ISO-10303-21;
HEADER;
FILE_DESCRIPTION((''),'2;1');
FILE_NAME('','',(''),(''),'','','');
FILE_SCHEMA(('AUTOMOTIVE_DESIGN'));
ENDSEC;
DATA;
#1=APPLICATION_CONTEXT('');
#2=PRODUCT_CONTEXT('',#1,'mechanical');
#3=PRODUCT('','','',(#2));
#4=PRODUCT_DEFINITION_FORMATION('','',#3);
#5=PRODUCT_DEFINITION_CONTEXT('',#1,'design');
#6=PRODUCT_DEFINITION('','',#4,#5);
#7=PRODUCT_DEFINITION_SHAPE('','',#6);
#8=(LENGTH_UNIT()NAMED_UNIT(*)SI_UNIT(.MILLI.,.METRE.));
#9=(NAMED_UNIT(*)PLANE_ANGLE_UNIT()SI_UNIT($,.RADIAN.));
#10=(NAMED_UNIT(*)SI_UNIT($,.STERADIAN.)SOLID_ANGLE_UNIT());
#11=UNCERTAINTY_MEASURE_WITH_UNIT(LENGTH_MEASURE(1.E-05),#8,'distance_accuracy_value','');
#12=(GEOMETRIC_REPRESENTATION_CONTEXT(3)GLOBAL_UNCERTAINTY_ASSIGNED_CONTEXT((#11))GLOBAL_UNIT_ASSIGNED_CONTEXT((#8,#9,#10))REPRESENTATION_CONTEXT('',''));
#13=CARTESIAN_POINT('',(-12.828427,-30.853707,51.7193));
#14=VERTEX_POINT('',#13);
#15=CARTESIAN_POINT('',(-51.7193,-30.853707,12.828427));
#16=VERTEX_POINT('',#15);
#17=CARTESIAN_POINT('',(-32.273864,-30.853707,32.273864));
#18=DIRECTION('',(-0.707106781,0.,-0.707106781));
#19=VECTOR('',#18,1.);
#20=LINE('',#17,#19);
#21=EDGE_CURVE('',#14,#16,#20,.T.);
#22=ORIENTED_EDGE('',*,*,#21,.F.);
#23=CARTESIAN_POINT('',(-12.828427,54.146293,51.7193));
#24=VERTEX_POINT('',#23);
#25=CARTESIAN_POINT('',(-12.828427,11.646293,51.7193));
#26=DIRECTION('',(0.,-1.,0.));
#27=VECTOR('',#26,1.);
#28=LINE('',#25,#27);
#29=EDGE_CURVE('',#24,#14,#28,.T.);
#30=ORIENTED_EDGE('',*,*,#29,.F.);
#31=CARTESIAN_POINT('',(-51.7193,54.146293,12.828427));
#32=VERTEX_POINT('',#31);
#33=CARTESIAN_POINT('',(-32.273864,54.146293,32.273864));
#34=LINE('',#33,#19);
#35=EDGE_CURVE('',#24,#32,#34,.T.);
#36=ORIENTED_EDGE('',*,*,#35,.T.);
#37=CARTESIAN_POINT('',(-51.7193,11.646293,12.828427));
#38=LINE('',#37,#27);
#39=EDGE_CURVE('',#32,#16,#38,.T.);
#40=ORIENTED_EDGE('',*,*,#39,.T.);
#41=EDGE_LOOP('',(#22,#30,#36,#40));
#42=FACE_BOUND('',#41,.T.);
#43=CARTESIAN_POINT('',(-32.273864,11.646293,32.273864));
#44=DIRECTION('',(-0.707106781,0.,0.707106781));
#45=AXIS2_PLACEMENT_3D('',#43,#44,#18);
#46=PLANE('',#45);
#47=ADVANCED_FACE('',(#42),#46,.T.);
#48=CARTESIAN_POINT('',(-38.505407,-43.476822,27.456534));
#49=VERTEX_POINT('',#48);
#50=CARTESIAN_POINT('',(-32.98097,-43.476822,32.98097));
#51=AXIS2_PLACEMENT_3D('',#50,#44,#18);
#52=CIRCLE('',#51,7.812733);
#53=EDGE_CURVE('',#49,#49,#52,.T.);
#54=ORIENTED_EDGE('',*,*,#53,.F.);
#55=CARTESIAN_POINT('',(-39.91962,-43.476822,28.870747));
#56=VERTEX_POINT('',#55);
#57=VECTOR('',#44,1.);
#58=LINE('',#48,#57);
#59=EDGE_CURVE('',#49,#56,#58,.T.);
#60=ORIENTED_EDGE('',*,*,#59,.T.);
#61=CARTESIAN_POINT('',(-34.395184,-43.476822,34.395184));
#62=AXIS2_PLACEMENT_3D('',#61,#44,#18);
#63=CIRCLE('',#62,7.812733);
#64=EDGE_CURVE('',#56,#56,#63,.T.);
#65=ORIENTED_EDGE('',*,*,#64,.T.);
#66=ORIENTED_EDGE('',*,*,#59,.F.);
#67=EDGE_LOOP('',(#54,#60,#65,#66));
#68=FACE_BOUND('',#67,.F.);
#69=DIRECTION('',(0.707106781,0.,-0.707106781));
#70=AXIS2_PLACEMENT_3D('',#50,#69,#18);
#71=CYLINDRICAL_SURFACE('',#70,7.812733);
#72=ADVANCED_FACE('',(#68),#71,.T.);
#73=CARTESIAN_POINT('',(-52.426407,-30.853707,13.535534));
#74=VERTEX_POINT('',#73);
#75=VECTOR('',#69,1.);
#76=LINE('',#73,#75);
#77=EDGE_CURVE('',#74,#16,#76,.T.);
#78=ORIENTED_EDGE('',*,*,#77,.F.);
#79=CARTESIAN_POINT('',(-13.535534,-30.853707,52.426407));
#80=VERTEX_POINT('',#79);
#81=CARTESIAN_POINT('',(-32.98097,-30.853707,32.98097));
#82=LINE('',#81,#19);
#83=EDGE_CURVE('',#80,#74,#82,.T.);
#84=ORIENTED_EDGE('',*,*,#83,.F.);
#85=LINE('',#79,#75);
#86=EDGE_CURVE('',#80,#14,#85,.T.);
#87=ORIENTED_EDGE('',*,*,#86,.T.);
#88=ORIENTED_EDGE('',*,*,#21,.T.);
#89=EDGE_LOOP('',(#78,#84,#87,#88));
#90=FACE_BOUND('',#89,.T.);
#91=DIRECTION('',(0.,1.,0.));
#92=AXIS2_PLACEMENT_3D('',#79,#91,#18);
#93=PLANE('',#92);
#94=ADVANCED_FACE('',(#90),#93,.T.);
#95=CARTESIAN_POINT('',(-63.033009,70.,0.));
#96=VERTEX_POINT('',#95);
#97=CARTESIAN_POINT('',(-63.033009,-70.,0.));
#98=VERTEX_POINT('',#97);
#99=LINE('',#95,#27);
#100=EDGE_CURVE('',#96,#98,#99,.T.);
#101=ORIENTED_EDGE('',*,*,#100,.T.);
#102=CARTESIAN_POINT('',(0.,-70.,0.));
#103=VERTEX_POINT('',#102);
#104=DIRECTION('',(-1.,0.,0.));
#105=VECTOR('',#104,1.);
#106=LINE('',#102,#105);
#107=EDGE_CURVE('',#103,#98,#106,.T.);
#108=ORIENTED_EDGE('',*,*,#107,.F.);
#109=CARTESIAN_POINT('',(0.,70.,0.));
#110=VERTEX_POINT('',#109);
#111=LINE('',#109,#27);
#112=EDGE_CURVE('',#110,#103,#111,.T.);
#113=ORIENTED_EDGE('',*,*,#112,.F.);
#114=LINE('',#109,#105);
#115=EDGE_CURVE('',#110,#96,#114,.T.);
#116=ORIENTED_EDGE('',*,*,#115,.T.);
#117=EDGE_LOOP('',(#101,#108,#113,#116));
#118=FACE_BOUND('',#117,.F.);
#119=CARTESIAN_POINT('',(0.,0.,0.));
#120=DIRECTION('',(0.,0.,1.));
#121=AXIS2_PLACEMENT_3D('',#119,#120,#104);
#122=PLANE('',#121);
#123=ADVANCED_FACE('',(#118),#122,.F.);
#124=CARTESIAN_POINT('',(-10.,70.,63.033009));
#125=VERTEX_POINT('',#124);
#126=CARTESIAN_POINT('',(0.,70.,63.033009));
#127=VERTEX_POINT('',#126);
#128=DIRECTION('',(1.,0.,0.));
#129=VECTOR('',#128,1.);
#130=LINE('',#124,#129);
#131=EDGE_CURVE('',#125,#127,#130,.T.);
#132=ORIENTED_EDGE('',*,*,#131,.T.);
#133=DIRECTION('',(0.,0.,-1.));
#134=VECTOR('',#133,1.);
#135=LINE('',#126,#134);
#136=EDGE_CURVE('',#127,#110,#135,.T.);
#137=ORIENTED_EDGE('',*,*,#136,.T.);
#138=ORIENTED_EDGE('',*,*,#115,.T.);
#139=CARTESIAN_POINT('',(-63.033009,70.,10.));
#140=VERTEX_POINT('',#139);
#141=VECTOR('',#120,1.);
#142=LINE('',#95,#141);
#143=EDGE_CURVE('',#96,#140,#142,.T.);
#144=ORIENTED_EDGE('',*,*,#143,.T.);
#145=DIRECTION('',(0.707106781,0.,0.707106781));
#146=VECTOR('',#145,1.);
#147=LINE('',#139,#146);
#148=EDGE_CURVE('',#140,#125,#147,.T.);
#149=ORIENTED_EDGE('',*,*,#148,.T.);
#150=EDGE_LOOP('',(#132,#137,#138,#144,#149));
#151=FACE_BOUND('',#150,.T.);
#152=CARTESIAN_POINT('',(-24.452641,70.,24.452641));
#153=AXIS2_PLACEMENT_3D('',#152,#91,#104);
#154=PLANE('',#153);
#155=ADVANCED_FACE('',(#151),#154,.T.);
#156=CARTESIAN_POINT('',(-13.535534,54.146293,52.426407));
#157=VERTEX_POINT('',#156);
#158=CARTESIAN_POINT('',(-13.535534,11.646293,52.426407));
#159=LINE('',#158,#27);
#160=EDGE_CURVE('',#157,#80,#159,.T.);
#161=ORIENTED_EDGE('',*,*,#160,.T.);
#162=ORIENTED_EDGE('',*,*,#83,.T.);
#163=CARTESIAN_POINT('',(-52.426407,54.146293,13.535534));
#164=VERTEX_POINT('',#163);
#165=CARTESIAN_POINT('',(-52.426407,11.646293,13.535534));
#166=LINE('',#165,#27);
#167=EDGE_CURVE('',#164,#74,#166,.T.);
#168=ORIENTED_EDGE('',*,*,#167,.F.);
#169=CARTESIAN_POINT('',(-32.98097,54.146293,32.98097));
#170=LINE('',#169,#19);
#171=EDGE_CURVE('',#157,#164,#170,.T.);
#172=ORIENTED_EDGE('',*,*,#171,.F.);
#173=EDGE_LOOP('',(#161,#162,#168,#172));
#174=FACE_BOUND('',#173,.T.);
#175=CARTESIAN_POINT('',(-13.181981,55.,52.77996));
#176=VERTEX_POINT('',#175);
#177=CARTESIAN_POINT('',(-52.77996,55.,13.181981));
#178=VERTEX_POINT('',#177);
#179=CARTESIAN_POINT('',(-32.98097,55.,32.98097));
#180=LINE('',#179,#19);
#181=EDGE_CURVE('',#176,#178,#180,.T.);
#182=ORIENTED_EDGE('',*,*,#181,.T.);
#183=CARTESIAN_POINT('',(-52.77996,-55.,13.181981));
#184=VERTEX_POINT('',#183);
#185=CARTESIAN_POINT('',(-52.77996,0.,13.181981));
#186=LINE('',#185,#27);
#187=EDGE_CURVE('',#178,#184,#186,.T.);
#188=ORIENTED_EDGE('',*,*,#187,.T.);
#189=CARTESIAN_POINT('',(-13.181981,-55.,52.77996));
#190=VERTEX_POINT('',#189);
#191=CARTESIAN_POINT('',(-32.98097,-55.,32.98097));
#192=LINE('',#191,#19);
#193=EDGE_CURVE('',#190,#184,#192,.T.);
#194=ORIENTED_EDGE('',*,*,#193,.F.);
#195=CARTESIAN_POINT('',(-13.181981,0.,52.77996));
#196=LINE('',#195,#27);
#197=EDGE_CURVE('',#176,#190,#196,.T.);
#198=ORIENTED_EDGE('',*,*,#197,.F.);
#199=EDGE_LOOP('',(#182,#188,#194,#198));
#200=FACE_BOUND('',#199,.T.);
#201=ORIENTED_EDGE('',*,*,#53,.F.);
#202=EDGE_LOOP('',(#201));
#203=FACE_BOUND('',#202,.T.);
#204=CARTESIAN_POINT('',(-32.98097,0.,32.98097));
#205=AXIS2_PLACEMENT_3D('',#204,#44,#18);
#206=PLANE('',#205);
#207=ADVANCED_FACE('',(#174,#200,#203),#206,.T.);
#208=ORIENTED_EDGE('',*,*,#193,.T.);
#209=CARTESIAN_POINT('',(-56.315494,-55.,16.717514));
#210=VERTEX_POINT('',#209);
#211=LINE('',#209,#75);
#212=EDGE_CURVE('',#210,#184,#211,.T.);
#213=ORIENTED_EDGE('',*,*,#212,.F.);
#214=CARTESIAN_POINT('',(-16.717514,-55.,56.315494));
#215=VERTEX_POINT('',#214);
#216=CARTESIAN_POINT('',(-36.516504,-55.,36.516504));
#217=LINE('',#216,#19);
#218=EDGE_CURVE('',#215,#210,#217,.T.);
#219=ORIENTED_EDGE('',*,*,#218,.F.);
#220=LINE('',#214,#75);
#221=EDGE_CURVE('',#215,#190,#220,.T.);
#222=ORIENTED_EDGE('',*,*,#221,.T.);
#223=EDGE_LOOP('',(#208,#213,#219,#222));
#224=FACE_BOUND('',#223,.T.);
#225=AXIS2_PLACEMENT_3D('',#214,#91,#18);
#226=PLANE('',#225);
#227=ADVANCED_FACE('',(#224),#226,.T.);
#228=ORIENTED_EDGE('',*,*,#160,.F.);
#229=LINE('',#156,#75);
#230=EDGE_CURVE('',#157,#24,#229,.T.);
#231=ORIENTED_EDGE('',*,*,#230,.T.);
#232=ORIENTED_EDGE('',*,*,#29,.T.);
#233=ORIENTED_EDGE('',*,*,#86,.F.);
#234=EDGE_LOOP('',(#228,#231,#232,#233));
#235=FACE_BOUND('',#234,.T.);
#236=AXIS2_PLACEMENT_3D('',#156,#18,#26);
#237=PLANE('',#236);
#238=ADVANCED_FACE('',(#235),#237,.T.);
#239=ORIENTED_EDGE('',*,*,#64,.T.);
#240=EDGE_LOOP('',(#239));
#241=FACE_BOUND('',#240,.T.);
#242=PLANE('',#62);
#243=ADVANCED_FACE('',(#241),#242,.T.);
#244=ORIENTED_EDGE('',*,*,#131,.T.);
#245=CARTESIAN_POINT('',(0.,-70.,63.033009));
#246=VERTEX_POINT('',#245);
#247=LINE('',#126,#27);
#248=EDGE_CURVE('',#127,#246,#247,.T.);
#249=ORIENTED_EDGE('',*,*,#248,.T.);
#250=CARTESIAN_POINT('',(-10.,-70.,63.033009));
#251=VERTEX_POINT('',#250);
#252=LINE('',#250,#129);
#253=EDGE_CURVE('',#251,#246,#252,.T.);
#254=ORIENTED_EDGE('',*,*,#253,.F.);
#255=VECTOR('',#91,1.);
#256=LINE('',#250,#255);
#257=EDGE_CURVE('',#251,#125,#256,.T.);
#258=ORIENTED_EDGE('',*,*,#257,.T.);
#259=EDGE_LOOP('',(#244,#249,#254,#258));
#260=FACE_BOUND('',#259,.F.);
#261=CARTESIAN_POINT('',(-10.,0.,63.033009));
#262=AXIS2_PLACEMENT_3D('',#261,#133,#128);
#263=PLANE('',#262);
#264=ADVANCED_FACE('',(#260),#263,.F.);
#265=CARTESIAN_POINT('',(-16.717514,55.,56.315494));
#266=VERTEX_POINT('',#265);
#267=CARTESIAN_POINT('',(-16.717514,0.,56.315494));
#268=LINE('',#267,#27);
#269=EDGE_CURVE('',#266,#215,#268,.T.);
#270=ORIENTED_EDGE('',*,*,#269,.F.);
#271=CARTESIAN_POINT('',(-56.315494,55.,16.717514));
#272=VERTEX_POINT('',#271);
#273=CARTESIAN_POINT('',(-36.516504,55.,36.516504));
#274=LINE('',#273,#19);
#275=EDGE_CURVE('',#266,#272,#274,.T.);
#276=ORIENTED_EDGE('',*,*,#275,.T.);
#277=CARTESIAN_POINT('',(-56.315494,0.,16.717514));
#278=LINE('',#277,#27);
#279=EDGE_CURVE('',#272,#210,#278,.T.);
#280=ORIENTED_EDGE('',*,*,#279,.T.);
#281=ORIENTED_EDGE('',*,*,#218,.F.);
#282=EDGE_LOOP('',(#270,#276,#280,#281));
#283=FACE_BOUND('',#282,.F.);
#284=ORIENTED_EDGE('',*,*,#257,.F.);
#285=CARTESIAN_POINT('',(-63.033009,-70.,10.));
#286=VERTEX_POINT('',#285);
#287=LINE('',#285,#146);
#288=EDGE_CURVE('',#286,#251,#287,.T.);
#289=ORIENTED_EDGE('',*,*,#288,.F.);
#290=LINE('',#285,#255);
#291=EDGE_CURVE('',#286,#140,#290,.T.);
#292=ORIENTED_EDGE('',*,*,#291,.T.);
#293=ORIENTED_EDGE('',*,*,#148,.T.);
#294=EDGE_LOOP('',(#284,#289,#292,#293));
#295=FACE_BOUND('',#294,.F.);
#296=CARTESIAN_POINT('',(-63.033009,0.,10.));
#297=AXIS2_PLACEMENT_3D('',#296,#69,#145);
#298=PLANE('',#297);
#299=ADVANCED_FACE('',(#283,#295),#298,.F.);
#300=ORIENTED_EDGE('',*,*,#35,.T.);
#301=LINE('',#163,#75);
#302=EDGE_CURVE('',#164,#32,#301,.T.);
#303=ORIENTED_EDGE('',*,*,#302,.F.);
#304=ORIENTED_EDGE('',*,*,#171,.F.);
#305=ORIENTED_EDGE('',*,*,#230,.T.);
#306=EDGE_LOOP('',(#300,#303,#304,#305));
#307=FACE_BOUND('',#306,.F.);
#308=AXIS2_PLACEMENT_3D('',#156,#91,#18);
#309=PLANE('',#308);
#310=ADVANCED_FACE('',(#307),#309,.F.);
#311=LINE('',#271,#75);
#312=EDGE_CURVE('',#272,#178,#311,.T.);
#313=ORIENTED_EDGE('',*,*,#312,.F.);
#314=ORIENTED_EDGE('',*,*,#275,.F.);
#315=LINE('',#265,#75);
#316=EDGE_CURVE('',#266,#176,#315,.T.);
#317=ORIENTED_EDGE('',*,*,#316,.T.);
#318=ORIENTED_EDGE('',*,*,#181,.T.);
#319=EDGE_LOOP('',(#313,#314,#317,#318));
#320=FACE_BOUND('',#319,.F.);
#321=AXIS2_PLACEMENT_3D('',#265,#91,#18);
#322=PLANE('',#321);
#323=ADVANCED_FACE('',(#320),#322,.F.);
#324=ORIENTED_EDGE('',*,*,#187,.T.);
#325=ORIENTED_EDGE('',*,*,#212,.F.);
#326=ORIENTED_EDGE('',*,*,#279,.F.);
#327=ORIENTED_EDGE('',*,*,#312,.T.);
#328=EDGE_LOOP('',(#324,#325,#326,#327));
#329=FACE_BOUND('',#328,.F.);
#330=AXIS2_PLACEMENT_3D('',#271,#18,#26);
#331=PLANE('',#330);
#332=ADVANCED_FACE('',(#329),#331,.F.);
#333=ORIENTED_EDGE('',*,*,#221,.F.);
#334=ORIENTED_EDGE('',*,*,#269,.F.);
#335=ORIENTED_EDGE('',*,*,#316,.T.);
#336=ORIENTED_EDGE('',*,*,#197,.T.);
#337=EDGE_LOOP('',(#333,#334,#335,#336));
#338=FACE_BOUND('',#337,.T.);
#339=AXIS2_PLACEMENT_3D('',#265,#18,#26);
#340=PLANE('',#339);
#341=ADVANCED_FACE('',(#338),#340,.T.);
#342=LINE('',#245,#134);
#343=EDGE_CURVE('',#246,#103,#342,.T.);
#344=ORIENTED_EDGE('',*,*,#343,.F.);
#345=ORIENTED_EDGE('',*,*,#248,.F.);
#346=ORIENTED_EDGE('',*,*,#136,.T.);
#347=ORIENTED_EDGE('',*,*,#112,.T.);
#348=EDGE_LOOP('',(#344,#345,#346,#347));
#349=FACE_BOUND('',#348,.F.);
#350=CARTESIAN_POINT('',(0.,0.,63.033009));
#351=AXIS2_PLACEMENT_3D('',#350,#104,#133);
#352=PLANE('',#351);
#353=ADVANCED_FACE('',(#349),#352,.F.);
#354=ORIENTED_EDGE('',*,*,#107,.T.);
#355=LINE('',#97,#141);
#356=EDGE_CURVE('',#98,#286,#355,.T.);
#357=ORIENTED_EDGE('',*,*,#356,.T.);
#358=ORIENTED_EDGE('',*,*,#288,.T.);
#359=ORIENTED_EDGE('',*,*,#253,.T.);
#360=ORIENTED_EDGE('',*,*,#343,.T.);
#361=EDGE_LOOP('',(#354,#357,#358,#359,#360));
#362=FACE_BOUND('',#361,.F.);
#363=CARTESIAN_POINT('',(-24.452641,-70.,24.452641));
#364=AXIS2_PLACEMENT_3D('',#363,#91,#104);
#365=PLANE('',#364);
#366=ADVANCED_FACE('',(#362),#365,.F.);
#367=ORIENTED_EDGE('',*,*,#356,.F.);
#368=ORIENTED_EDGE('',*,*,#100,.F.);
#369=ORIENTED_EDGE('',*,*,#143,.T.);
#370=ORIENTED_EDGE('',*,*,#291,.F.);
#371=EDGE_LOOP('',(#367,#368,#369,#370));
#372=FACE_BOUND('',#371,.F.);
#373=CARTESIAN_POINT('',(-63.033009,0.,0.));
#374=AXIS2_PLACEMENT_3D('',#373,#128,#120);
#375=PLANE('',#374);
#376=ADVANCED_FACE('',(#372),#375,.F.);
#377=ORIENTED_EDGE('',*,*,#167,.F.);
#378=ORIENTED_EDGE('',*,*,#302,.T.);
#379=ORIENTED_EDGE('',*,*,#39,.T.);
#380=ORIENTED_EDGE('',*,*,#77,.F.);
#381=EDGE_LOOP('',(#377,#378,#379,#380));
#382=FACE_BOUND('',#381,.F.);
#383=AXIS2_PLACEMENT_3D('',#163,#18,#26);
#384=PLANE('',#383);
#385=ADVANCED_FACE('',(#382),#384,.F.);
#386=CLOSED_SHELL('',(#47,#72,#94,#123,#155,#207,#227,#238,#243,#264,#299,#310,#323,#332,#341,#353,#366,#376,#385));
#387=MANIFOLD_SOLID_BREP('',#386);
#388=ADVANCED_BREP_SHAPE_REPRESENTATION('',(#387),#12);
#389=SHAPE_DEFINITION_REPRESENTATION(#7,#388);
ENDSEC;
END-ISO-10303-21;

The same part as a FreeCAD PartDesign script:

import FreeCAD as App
import Part
import Sketcher
from FreeCAD import Vector

doc = App.newDocument("Part")
body = doc.addObject("PartDesign::Body", "Body")

# Sketch on XZ plane
sketch1 = body.newObject("Sketcher::SketchObject", "Sketch")
sketch1.AttachmentSupport = (doc.getObject("XZ_Plane"), [""])
sketch1.MapMode = "FlatFace"
sketch1.addGeometry(Part.LineSegment(Vector(-63, 10, 0), Vector(-63, 0, 0)), False)
sketch1.addGeometry(Part.LineSegment(Vector(-63, 0, 0), Vector(0, 0, 0)), False)
sketch1.addGeometry(Part.LineSegment(Vector(0, 0, 0), Vector(0, 63, 0)), False)
sketch1.addGeometry(Part.LineSegment(Vector(0, 63, 0), Vector(-10, 63, 0)), False)
sketch1.addGeometry(Part.LineSegment(Vector(-10, 63, 0), Vector(-63, 10, 0)), False)
sketch1.addConstraint(Sketcher.Constraint("Coincident", 0, 2, 1, 1))
sketch1.addConstraint(Sketcher.Constraint("Coincident", 1, 2, 2, 1))
sketch1.addConstraint(Sketcher.Constraint("Coincident", 2, 2, 3, 1))
sketch1.addConstraint(Sketcher.Constraint("Coincident", 3, 2, 4, 1))
sketch1.addConstraint(Sketcher.Constraint("Coincident", 4, 2, 0, 1))
sketch1.addConstraint(Sketcher.Constraint("Vertical", 0))
sketch1.addConstraint(Sketcher.Constraint("Horizontal", 1))
sketch1.addConstraint(Sketcher.Constraint("Vertical", 2))
sketch1.addConstraint(Sketcher.Constraint("Horizontal", 3))
sketch1.addConstraint(Sketcher.Constraint("Coincident", 1, 2, -1, 1))
sketch1.addConstraint(Sketcher.Constraint("Equal", 3, 0))
sketch1.addConstraint(Sketcher.Constraint("Equal", 1, 2))
sketch1.addConstraint(Sketcher.Constraint("DistanceX", 3, 2, 3, 1, 10.0))
sketch1.addConstraint(Sketcher.Constraint("Distance", 4, 75.0))
pad1 = body.newObject("PartDesign::Pad", "Pad")
pad1.Profile = sketch1
pad1.Type = "TwoLengths"
pad1.Length = 70
pad1.Length2 = 70

# Sketch on an angled plane
sketch2 = body.newObject("Sketcher::SketchObject", "Sketch001")
sketch2.Placement = App.Placement(Vector(-36.516504, 0, 36.516504), App.Rotation(Vector(-0.707106781, 0, -0.707106781), Vector(0, -0.999999999, 0), Vector(-0.707106781, 0, 0.707106781), "ZXY"))
sketch2.addGeometry(Part.LineSegment(Vector(-28, 55, 0), Vector(-28, -55, 0)), False)
sketch2.addGeometry(Part.LineSegment(Vector(-28, -55, 0), Vector(28, -55, 0)), False)
sketch2.addGeometry(Part.LineSegment(Vector(28, -55, 0), Vector(28, 55, 0)), False)
sketch2.addGeometry(Part.LineSegment(Vector(28, 55, 0), Vector(-28, 55, 0)), False)
sketch2.addConstraint(Sketcher.Constraint("Coincident", 0, 2, 1, 1))
sketch2.addConstraint(Sketcher.Constraint("Coincident", 1, 2, 2, 1))
sketch2.addConstraint(Sketcher.Constraint("Coincident", 2, 2, 3, 1))
sketch2.addConstraint(Sketcher.Constraint("Coincident", 3, 2, 0, 1))
sketch2.addConstraint(Sketcher.Constraint("Vertical", 0))
sketch2.addConstraint(Sketcher.Constraint("Horizontal", 1))
sketch2.addConstraint(Sketcher.Constraint("Vertical", 2))
sketch2.addConstraint(Sketcher.Constraint("Horizontal", 3))
sketch2.addConstraint(Sketcher.Constraint("Symmetric", 0, 2, 2, 2, -1, 1))
sketch2.addConstraint(Sketcher.Constraint("DistanceX", 1, 1, 1, 2, 56.0))
sketch2.addConstraint(Sketcher.Constraint("DistanceY", 0, 2, 0, 1, 110.0))
pocket1 = body.newObject("PartDesign::Pocket", "Pocket")
pocket1.Profile = sketch2
pocket1.Length = 5

# Sketch on an angled plane
sketch3 = body.newObject("Sketcher::SketchObject", "Sketch002")
sketch3.Placement = App.Placement(Vector(-32.98097, 0, 32.98097), App.Rotation(Vector(-0.707106781, 0, -0.707106781), Vector(0, -0.999999999, 0), Vector(-0.707106781, 0, 0.707106781), "ZXY"))
sketch3.addGeometry(Part.LineSegment(Vector(-27, 31, 0), Vector(-27, -54, 0)), False)
sketch3.addGeometry(Part.LineSegment(Vector(-27, -54, 0), Vector(27, -54, 0)), False)
sketch3.addGeometry(Part.LineSegment(Vector(27, -54, 0), Vector(27, 31, 0)), False)
sketch3.addGeometry(Part.LineSegment(Vector(27, 31, 0), Vector(-27, 31, 0)), False)
sketch3.addConstraint(Sketcher.Constraint("Coincident", 0, 2, 1, 1))
sketch3.addConstraint(Sketcher.Constraint("Coincident", 1, 2, 2, 1))
sketch3.addConstraint(Sketcher.Constraint("Coincident", 2, 2, 3, 1))
sketch3.addConstraint(Sketcher.Constraint("Coincident", 3, 2, 0, 1))
sketch3.addConstraint(Sketcher.Constraint("Vertical", 0))
sketch3.addConstraint(Sketcher.Constraint("Horizontal", 1))
sketch3.addConstraint(Sketcher.Constraint("Vertical", 2))
sketch3.addConstraint(Sketcher.Constraint("Horizontal", 3))
sketch3.addConstraint(Sketcher.Constraint("DistanceX", 1, 1, 1, 2, 55.0))
sketch3.addConstraint(Sketcher.Constraint("DistanceY", 0, 2, 0, 1, 85.0))
sketch3.addConstraint(Sketcher.Constraint("DistanceX", 0, 2, -1, 1, 27.5))
sketch3.addConstraint(Sketcher.Constraint("DistanceY", 0, 2, -1, 1, 54.146293))
pocket2 = body.newObject("PartDesign::Pocket", "Pocket001")
pocket2.Profile = sketch3
pocket2.Length = 1

# Sketch on an angled plane
sketch4 = body.newObject("Sketcher::SketchObject", "Sketch003")
sketch4.Placement = App.Placement(Vector(-32.98097, 0, 32.98097), App.Rotation(Vector(-0.707106781, 0, -0.707106781), Vector(0, -0.999999999, 0), Vector(-0.707106781, 0, 0.707106781), "ZXY"))
sketch4.addGeometry(Part.Circle(Vector(0, 43, 0), Vector(0, 0, 1), 8), False)
sketch4.addConstraint(Sketcher.Constraint("PointOnObject", 0, 3, -2))
sketch4.addConstraint(Sketcher.Constraint("Diameter", 0, 15.625466))
sketch4.addConstraint(Sketcher.Constraint("DistanceY", -1, 1, 0, 3, 43.476822))
pad2 = body.newObject("PartDesign::Pad", "Pad001")
pad2.Profile = sketch4
pad2.Length = 2

doc.recompute()
